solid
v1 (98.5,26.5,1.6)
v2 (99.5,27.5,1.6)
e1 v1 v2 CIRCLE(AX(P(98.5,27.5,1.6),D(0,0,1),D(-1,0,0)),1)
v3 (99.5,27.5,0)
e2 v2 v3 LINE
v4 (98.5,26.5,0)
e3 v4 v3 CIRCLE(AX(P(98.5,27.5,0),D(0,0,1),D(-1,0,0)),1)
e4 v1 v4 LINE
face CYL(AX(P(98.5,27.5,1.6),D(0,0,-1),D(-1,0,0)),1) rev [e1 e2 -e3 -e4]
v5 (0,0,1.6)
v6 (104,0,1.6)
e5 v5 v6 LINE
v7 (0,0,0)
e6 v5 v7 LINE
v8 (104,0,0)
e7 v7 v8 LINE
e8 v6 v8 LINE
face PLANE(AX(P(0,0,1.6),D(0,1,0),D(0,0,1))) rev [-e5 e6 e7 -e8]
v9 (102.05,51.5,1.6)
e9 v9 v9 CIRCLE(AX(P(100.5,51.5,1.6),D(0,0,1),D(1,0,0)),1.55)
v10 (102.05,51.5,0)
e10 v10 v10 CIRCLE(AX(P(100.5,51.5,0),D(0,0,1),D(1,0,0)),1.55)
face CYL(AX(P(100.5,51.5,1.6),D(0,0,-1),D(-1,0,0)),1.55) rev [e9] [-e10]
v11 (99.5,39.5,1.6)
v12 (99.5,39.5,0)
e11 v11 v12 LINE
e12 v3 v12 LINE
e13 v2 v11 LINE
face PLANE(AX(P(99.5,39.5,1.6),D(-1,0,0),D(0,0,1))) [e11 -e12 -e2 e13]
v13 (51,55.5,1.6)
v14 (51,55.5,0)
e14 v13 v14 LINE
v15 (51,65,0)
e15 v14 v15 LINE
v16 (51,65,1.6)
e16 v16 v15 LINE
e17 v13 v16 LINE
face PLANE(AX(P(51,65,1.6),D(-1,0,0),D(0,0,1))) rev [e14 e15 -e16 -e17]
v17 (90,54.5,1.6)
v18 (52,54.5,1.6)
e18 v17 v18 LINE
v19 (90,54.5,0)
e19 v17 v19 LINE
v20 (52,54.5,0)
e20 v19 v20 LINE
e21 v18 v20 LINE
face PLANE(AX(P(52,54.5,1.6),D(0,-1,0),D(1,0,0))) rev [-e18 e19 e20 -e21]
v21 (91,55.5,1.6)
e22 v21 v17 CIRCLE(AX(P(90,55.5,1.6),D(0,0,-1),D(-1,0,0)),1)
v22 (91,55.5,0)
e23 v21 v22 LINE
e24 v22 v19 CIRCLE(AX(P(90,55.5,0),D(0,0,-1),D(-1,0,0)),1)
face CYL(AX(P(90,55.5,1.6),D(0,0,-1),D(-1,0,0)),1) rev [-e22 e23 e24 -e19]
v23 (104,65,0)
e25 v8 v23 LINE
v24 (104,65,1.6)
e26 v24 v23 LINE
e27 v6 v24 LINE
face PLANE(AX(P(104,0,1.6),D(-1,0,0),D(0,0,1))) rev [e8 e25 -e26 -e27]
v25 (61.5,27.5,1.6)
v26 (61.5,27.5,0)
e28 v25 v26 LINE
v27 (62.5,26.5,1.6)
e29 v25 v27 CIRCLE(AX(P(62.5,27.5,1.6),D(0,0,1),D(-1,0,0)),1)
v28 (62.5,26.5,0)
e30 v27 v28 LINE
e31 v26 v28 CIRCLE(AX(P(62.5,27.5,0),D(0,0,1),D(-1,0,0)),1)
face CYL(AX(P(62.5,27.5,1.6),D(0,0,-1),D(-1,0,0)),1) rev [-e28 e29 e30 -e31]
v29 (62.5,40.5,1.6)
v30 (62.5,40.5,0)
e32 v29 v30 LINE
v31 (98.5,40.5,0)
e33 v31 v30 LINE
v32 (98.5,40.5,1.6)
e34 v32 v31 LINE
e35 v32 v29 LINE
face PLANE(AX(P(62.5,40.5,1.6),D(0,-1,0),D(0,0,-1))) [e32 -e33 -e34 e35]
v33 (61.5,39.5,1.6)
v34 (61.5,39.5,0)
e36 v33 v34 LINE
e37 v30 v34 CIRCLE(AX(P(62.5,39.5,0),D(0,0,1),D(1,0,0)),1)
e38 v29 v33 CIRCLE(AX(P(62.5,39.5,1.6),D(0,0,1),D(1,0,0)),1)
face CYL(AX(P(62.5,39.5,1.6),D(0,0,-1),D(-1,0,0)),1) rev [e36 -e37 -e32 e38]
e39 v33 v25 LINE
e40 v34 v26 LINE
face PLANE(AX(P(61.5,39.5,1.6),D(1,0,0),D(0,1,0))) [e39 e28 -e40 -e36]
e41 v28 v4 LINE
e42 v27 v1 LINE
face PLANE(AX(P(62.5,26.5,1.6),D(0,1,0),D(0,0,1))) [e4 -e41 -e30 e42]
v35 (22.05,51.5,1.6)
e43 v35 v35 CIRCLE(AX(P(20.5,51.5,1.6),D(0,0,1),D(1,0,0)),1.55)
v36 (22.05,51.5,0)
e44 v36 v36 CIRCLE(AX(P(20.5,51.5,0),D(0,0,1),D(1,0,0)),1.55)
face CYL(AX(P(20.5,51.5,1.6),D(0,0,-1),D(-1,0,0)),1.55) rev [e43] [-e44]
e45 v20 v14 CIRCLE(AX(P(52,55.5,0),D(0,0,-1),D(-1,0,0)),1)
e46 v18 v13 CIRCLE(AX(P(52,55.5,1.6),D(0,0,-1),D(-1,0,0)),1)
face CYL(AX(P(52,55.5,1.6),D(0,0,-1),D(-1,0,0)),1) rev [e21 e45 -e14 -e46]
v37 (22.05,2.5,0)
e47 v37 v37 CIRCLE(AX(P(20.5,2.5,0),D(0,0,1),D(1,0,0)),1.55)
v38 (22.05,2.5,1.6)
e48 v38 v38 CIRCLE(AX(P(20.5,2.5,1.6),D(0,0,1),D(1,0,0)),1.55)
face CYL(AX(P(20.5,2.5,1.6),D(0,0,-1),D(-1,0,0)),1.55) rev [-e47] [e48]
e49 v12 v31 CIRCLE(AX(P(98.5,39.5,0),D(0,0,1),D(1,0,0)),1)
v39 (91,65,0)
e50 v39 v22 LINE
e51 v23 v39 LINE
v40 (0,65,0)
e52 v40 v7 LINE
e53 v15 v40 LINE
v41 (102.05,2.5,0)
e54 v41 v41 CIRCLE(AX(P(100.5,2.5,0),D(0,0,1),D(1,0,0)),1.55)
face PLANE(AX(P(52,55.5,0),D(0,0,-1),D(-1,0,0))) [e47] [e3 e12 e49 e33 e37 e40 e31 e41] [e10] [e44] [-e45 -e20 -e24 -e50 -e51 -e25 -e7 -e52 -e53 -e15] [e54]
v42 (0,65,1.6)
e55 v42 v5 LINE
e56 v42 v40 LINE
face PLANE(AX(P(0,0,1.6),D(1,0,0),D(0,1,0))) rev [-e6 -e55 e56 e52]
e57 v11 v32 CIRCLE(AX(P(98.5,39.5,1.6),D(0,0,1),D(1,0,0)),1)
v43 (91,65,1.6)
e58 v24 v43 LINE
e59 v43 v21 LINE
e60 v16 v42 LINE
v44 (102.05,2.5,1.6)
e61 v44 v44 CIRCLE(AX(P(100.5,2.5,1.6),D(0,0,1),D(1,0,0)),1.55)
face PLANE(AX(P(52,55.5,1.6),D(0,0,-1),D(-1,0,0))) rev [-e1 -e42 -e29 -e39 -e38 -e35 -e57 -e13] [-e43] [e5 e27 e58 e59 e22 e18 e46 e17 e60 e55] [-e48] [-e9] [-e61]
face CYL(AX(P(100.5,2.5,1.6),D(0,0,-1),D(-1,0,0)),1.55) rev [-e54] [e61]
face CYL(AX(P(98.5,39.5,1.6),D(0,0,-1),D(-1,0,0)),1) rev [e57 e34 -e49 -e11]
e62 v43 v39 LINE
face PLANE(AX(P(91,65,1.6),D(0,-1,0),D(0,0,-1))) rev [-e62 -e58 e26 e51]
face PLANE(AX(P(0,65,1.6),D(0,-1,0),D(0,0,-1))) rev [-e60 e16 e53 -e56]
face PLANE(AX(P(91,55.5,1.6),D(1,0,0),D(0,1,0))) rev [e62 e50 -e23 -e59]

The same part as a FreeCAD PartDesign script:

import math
import FreeCAD as App
import Part
import Sketcher
from FreeCAD import Vector
Q = App.Units.Quantity

doc = App.newDocument("Part")
params = doc.addObject("Spreadsheet::Sheet", "Params")
for row, (alias, value) in enumerate([
    ("sketch1_radius", "1 mm"),
    ("sketch1_diameter", "3.1 mm"),
    ("sketch1_width", "51 mm"),
    ("sketch1_width2", "104 mm"),
    ("sketch1_width3", "13 mm"),
    ("pad1_length", "1.6 mm"),
], start=1):
    params.set(f"A{row}", alias)
    params.set(f"B{row}", "=" + value)
    params.setAlias(f"B{row}", alias)

body = doc.addObject("PartDesign::Body", "Body")

sketch1 = body.newObject("Sketcher::SketchObject", "Sketch")
sketch1.AttachmentSupport = (doc.getObject("XY_Plane"), [""])
sketch1.MapMode = "FlatFace"
sketch1.addGeometry(Part.LineSegment(Vector(51, 65, 0), Vector(0, 65, 0)), False)
sketch1.addGeometry(Part.LineSegment(Vector(0, 65, 0), Vector(0, 0, 0)), False)
sketch1.addGeometry(Part.LineSegment(Vector(0, 0, 0), Vector(104, 0, 0)), False)
sketch1.addGeometry(Part.LineSegment(Vector(104, 0, 0), Vector(104, 65, 0)), False)
sketch1.addGeometry(Part.LineSegment(Vector(104, 65, 0), Vector(91, 65, 0)), False)
sketch1.addGeometry(Part.LineSegment(Vector(91, 65, 0), Vector(91, 55.5, 0)), False)
sketch1.addGeometry(Part.ArcOfCircle(Part.Circle(Vector(90, 55.5, 0), Vector(0, 0, 1), 1), math.radians(-90), math.radians(0)), False)
sketch1.addGeometry(Part.LineSegment(Vector(90, 54.5, 0), Vector(52, 54.5, 0)), False)
sketch1.addGeometry(Part.ArcOfCircle(Part.Circle(Vector(52, 55.5, 0), Vector(0, 0, 1), 1), math.radians(-180), math.radians(-90)), False)
sketch1.addGeometry(Part.LineSegment(Vector(51, 55.5, 0), Vector(51, 65, 0)), False)
sketch1.addGeometry(Part.Circle(Vector(100.5, 2.5, 0), Vector(0, 0, 1), 1.6), False)
sketch1.addGeometry(Part.Circle(Vector(20.5, 2.5, 0), Vector(0, 0, 1), 1.6), False)
sketch1.addGeometry(Part.LineSegment(Vector(62.5, 40.5, 0), Vector(98.5, 40.5, 0)), False)
sketch1.addGeometry(Part.ArcOfCircle(Part.Circle(Vector(98.5, 39.5, 0), Vector(0, 0, 1), 1), math.radians(0), math.radians(90)), False)
sketch1.addGeometry(Part.LineSegment(Vector(99.5, 39.5, 0), Vector(99.5, 27.5, 0)), False)
sketch1.addGeometry(Part.ArcOfCircle(Part.Circle(Vector(98.5, 27.5, 0), Vector(0, 0, 1), 1), math.radians(-90), math.radians(0)), False)
sketch1.addGeometry(Part.LineSegment(Vector(98.5, 26.5, 0), Vector(62.5, 26.5, 0)), False)
sketch1.addGeometry(Part.ArcOfCircle(Part.Circle(Vector(62.5, 27.5, 0), Vector(0, 0, 1), 1), math.radians(-180), math.radians(-90)), False)
sketch1.addGeometry(Part.LineSegment(Vector(61.5, 27.5, 0), Vector(61.5, 39.5, 0)), False)
sketch1.addGeometry(Part.ArcOfCircle(Part.Circle(Vector(62.5, 39.5, 0), Vector(0, 0, 1), 1), math.radians(90), math.radians(180)), False)
sketch1.addGeometry(Part.Circle(Vector(100.5, 51.5, 0), Vector(0, 0, 1), 1.6), False)
sketch1.addGeometry(Part.Circle(Vector(20.5, 51.5, 0), Vector(0, 0, 1), 1.6), False)
sketch1.addConstraint(Sketcher.Constraint("Coincident", 0, 2, 1, 1))
sketch1.addConstraint(Sketcher.Constraint("Coincident", 1, 2, 2, 1))
sketch1.addConstraint(Sketcher.Constraint("Coincident", 2, 2, 3, 1))
sketch1.addConstraint(Sketcher.Constraint("Coincident", 3, 2, 4, 1))
sketch1.addConstraint(Sketcher.Constraint("Coincident", 4, 2, 5, 1))
sketch1.addConstraint(Sketcher.Constraint("Tangent", 5, 2, 6, 2))
sketch1.addConstraint(Sketcher.Constraint("Tangent", 6, 1, 7, 1))
sketch1.addConstraint(Sketcher.Constraint("Tangent", 7, 2, 8, 2))
sketch1.addConstraint(Sketcher.Constraint("Tangent", 8, 1, 9, 1))
sketch1.addConstraint(Sketcher.Constraint("Coincident", 9, 2, 0, 1))
sketch1.addConstraint(Sketcher.Constraint("Tangent", 12, 2, 13, 2))
sketch1.addConstraint(Sketcher.Constraint("Tangent", 13, 1, 14, 1))
sketch1.addConstraint(Sketcher.Constraint("Tangent", 14, 2, 15, 2))
sketch1.addConstraint(Sketcher.Constraint("Tangent", 15, 1, 16, 1))
sketch1.addConstraint(Sketcher.Constraint("Tangent", 16, 2, 17, 2))
sketch1.addConstraint(Sketcher.Constraint("Tangent", 17, 1, 18, 1))
sketch1.addConstraint(Sketcher.Constraint("Tangent", 18, 2, 19, 2))
sketch1.addConstraint(Sketcher.Constraint("Tangent", 19, 1, 12, 1))
sketch1.addConstraint(Sketcher.Constraint("Horizontal", 0))
sketch1.addConstraint(Sketcher.Constraint("Vertical", 1))
sketch1.addConstraint(Sketcher.Constraint("Horizontal", 2))
sketch1.addConstraint(Sketcher.Constraint("Vertical", 3))
sketch1.addConstraint(Sketcher.Constraint("Horizontal", 4))
sketch1.addConstraint(Sketcher.Constraint("Vertical", 5))
sketch1.addConstraint(Sketcher.Constraint("Horizontal", 7))
sketch1.addConstraint(Sketcher.Constraint("Vertical", 9))
sketch1.addConstraint(Sketcher.Constraint("Horizontal", 12))
sketch1.addConstraint(Sketcher.Constraint("Vertical", 14))
sketch1.addConstraint(Sketcher.Constraint("Horizontal", 16))
sketch1.addConstraint(Sketcher.Constraint("Vertical", 18))
sketch1.addConstraint(Sketcher.Constraint("Coincident", 1, 2, -1, 1))
sketch1.addConstraint(Sketcher.Constraint("Equal", 6, 8))
sketch1.addConstraint(Sketcher.Constraint("Equal", 10, 11))
sketch1.addConstraint(Sketcher.Constraint("Equal", 8, 13))
sketch1.addConstraint(Sketcher.Constraint("Equal", 13, 15))
sketch1.addConstraint(Sketcher.Constraint("Equal", 15, 17))
sketch1.addConstraint(Sketcher.Constraint("Equal", 17, 19))
sketch1.addConstraint(Sketcher.Constraint("Equal", 11, 20))
sketch1.addConstraint(Sketcher.Constraint("Equal", 20, 21))
sketch1.addConstraint(Sketcher.Constraint("Horizontal", 10, 3, 11, 3))
sketch1.addConstraint(Sketcher.Constraint("Horizontal", 20, 3, 21, 3))
sketch1.addConstraint(Sketcher.Constraint("Horizontal", 0, 2, 3, 2))
sketch1.addConstraint(Sketcher.Constraint("Vertical", 10, 3, 20, 3))
sketch1.addConstraint(Sketcher.Constraint("Vertical", 11, 3, 21, 3))
sketch1.addConstraint(Sketcher.Constraint("Radius", 6, Q("1 mm")))
sketch1.addConstraint(Sketcher.Constraint("Diameter", 10, Q("3.1 mm")))
sketch1.addConstraint(Sketcher.Constraint("DistanceX", 0, 2, 0, 1, Q("51 mm")))
sketch1.addConstraint(Sketcher.Constraint("DistanceX", 2, 1, 2, 2, Q("104 mm")))
sketch1.addConstraint(Sketcher.Constraint("DistanceX", 4, 2, 4, 1, Q("13 mm")))
sketch1.addConstraint(Sketcher.Constraint("DistanceX", 12, 1, 12, 2, Q("36 mm")))
sketch1.addConstraint(Sketcher.Constraint("DistanceY", 1, 2, 1, 1, Q("65 mm")))
sketch1.addConstraint(Sketcher.Constraint("DistanceY", 14, 2, 14, 1, Q("12 mm")))
sketch1.addConstraint(Sketcher.Constraint("DistanceY", 5, 2, 5, 1, Q("9.5 mm")))
sketch1.addConstraint(Sketcher.Constraint("DistanceY", 10, 3, 6, 3, Q("53 mm")))
sketch1.addConstraint(Sketcher.Constraint("DistanceX", 11, 3, 10, 3, Q("80 mm")))
sketch1.addConstraint(Sketcher.Constraint("DistanceY", 13, 3, 6, 3, Q("16 mm")))
sketch1.addConstraint(Sketcher.Constraint("DistanceX", 13, 3, 10, 3, Q("2 mm")))
sketch1.addConstraint(Sketcher.Constraint("DistanceY", 20, 3, 6, 3, Q("4 mm")))
sketch1.addConstraint(Sketcher.Constraint("DistanceX", -1, 1, 10, 3, Q("100.5 mm")))
sketch1.setExpression("Constraints[44]", "Params.sketch1_radius")
sketch1.setExpression("Constraints[45]", "Params.sketch1_diameter")
sketch1.setExpression("Constraints[46]", "Params.sketch1_width")
sketch1.setExpression("Constraints[47]", "Params.sketch1_width2")
sketch1.setExpression("Constraints[48]", "Params.sketch1_width3")
pad1 = body.newObject("PartDesign::Pad", "Pad")
pad1.Profile = sketch1
pad1.setExpression("Length", "Params.pad1_length")

doc.recompute()
